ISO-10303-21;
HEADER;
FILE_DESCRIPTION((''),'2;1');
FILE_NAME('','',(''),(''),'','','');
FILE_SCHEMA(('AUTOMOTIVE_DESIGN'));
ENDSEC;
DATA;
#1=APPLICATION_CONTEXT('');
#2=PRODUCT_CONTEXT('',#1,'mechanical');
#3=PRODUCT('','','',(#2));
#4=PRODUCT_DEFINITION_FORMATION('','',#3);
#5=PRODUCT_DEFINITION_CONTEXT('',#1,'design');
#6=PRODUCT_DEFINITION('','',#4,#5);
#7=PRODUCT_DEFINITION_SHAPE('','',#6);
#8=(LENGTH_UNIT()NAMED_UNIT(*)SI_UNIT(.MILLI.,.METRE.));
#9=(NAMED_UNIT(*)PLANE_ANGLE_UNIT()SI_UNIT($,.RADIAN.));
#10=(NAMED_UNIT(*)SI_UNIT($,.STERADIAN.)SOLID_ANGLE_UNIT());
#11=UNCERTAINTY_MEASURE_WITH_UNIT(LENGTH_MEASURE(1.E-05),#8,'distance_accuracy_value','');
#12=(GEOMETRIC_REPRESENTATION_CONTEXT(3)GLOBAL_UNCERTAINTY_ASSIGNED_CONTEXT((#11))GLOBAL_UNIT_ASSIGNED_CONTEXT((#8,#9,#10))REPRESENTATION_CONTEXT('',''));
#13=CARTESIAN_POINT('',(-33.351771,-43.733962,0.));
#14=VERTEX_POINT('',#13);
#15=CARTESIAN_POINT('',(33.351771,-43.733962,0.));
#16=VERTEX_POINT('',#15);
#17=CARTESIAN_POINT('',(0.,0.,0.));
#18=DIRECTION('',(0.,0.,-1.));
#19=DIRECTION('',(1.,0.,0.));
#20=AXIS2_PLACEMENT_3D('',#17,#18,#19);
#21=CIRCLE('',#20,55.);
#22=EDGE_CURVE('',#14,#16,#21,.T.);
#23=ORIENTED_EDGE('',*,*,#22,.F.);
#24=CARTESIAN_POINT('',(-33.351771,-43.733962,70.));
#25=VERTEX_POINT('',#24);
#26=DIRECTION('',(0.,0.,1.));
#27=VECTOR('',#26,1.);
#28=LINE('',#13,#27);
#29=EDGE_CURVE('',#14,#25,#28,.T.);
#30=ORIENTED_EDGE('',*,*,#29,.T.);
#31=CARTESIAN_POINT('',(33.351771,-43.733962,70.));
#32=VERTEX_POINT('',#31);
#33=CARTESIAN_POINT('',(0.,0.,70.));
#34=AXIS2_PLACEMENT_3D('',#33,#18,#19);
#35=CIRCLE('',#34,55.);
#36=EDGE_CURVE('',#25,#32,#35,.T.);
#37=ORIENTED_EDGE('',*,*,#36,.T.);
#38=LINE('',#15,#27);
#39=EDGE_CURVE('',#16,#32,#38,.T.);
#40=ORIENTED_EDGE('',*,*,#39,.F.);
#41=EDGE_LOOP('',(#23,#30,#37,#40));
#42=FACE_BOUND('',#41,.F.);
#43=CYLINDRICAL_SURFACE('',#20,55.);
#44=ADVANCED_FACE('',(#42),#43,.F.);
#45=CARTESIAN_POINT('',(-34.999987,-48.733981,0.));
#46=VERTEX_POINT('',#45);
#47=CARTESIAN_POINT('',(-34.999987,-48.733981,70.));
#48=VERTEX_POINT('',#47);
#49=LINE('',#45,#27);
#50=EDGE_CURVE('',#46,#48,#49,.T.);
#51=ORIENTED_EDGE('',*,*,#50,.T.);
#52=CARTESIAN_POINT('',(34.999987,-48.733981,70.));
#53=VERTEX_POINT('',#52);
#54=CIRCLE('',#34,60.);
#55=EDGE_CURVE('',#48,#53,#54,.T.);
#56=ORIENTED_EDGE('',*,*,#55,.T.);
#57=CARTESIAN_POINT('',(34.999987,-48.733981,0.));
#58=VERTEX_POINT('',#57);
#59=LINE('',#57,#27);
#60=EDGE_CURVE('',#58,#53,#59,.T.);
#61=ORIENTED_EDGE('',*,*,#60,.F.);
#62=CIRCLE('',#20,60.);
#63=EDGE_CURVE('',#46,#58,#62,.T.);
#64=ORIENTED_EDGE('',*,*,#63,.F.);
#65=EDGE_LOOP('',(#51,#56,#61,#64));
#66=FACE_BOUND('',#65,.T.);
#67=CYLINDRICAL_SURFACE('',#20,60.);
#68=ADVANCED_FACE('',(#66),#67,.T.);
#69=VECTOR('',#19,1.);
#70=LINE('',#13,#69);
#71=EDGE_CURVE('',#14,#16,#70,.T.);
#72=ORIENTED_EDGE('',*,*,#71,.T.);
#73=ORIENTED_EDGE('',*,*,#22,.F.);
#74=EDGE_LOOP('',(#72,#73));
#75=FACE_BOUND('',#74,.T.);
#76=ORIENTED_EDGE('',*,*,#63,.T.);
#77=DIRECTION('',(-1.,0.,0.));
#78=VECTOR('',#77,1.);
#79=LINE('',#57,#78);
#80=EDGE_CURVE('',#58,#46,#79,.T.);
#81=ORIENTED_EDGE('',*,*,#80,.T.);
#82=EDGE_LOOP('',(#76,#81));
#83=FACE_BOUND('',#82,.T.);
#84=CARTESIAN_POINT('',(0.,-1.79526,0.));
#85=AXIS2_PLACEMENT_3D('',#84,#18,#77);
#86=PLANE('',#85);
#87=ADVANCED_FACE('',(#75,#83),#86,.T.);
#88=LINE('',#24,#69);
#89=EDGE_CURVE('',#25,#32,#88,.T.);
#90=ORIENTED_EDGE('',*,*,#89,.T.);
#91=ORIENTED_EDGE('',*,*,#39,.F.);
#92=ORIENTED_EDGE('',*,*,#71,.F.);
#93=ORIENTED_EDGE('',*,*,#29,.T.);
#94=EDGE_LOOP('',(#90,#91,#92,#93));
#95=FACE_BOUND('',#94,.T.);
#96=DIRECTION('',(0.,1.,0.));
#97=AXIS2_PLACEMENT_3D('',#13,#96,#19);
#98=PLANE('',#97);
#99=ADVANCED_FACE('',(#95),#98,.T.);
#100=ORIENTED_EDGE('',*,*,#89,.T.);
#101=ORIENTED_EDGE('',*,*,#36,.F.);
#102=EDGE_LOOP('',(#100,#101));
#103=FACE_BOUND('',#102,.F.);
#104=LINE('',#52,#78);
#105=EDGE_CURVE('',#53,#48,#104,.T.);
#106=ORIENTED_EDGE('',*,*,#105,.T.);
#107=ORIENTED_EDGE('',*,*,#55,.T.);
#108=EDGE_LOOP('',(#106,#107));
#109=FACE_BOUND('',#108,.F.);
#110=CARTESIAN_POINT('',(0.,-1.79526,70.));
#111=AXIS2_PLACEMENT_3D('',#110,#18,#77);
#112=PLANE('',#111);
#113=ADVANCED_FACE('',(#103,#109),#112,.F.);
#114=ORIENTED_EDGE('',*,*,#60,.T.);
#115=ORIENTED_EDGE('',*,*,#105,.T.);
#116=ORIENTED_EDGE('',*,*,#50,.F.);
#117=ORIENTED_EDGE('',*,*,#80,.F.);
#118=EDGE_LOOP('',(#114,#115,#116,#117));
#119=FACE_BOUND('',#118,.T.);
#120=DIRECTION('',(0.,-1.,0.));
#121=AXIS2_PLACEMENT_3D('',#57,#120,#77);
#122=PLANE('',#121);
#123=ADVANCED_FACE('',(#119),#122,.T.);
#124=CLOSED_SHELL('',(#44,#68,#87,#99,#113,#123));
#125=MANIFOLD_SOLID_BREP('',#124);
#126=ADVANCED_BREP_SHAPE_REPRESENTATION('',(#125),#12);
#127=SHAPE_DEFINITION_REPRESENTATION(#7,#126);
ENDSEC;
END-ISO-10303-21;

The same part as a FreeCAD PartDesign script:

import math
import FreeCAD as App
import Part
import Sketcher

V = App.Vector
Q = App.Units.Quantity

doc = App.newDocument("Part")
body = doc.addObject("PartDesign::Body", "Body")

sketch1 = body.newObject("Sketcher::SketchObject", "Sketch")
sketch1.AttachmentSupport = (doc.getObject("XY_Plane"), [""])
sketch1.MapMode = "FlatFace"
sketch1.addGeometry([
    Part.LineSegment(V(-35, -49, 0), V(35, -49, 0)),
    Part.ArcOfCircle(Part.Circle(V(0, 0, 0), V(0, 0, 1), 60), math.radians(-54), math.radians(234)),
    Part.LineSegment(V(33, -44, 0), V(-33, -44, 0)),
    Part.ArcOfCircle(Part.Circle(V(0, 0, 0), V(0, 0, 1), 55), math.radians(-53), math.radians(233)),
], False)
sketch1.addConstraint([
    Sketcher.Constraint("Coincident", 0, 1, 1, 2),
    Sketcher.Constraint("Coincident", 1, 1, 0, 2),
    Sketcher.Constraint("Coincident", 2, 1, 3, 1),
    Sketcher.Constraint("Coincident", 3, 2, 2, 2),
    Sketcher.Constraint("Horizontal", 0),
    Sketcher.Constraint("Horizontal", 2),
    Sketcher.Constraint("Coincident", 1, 3, -1, 1),
    Sketcher.Constraint("Coincident", 3, 3, -1, 1),
    Sketcher.Constraint("Radius", 1, Q("60 mm")),
    Sketcher.Constraint("Radius", 3, Q("55 mm")),
    Sketcher.Constraint("DistanceX", 0, 1, 0, 2, Q("70 mm")),
    Sketcher.Constraint("DistanceY", 1, 1, 2, 1, Q("5 mm")),
])
pad1 = body.newObject("PartDesign::Pad", "Pad")
pad1.Profile = sketch1
pad1.Length = 70

doc.recompute()
